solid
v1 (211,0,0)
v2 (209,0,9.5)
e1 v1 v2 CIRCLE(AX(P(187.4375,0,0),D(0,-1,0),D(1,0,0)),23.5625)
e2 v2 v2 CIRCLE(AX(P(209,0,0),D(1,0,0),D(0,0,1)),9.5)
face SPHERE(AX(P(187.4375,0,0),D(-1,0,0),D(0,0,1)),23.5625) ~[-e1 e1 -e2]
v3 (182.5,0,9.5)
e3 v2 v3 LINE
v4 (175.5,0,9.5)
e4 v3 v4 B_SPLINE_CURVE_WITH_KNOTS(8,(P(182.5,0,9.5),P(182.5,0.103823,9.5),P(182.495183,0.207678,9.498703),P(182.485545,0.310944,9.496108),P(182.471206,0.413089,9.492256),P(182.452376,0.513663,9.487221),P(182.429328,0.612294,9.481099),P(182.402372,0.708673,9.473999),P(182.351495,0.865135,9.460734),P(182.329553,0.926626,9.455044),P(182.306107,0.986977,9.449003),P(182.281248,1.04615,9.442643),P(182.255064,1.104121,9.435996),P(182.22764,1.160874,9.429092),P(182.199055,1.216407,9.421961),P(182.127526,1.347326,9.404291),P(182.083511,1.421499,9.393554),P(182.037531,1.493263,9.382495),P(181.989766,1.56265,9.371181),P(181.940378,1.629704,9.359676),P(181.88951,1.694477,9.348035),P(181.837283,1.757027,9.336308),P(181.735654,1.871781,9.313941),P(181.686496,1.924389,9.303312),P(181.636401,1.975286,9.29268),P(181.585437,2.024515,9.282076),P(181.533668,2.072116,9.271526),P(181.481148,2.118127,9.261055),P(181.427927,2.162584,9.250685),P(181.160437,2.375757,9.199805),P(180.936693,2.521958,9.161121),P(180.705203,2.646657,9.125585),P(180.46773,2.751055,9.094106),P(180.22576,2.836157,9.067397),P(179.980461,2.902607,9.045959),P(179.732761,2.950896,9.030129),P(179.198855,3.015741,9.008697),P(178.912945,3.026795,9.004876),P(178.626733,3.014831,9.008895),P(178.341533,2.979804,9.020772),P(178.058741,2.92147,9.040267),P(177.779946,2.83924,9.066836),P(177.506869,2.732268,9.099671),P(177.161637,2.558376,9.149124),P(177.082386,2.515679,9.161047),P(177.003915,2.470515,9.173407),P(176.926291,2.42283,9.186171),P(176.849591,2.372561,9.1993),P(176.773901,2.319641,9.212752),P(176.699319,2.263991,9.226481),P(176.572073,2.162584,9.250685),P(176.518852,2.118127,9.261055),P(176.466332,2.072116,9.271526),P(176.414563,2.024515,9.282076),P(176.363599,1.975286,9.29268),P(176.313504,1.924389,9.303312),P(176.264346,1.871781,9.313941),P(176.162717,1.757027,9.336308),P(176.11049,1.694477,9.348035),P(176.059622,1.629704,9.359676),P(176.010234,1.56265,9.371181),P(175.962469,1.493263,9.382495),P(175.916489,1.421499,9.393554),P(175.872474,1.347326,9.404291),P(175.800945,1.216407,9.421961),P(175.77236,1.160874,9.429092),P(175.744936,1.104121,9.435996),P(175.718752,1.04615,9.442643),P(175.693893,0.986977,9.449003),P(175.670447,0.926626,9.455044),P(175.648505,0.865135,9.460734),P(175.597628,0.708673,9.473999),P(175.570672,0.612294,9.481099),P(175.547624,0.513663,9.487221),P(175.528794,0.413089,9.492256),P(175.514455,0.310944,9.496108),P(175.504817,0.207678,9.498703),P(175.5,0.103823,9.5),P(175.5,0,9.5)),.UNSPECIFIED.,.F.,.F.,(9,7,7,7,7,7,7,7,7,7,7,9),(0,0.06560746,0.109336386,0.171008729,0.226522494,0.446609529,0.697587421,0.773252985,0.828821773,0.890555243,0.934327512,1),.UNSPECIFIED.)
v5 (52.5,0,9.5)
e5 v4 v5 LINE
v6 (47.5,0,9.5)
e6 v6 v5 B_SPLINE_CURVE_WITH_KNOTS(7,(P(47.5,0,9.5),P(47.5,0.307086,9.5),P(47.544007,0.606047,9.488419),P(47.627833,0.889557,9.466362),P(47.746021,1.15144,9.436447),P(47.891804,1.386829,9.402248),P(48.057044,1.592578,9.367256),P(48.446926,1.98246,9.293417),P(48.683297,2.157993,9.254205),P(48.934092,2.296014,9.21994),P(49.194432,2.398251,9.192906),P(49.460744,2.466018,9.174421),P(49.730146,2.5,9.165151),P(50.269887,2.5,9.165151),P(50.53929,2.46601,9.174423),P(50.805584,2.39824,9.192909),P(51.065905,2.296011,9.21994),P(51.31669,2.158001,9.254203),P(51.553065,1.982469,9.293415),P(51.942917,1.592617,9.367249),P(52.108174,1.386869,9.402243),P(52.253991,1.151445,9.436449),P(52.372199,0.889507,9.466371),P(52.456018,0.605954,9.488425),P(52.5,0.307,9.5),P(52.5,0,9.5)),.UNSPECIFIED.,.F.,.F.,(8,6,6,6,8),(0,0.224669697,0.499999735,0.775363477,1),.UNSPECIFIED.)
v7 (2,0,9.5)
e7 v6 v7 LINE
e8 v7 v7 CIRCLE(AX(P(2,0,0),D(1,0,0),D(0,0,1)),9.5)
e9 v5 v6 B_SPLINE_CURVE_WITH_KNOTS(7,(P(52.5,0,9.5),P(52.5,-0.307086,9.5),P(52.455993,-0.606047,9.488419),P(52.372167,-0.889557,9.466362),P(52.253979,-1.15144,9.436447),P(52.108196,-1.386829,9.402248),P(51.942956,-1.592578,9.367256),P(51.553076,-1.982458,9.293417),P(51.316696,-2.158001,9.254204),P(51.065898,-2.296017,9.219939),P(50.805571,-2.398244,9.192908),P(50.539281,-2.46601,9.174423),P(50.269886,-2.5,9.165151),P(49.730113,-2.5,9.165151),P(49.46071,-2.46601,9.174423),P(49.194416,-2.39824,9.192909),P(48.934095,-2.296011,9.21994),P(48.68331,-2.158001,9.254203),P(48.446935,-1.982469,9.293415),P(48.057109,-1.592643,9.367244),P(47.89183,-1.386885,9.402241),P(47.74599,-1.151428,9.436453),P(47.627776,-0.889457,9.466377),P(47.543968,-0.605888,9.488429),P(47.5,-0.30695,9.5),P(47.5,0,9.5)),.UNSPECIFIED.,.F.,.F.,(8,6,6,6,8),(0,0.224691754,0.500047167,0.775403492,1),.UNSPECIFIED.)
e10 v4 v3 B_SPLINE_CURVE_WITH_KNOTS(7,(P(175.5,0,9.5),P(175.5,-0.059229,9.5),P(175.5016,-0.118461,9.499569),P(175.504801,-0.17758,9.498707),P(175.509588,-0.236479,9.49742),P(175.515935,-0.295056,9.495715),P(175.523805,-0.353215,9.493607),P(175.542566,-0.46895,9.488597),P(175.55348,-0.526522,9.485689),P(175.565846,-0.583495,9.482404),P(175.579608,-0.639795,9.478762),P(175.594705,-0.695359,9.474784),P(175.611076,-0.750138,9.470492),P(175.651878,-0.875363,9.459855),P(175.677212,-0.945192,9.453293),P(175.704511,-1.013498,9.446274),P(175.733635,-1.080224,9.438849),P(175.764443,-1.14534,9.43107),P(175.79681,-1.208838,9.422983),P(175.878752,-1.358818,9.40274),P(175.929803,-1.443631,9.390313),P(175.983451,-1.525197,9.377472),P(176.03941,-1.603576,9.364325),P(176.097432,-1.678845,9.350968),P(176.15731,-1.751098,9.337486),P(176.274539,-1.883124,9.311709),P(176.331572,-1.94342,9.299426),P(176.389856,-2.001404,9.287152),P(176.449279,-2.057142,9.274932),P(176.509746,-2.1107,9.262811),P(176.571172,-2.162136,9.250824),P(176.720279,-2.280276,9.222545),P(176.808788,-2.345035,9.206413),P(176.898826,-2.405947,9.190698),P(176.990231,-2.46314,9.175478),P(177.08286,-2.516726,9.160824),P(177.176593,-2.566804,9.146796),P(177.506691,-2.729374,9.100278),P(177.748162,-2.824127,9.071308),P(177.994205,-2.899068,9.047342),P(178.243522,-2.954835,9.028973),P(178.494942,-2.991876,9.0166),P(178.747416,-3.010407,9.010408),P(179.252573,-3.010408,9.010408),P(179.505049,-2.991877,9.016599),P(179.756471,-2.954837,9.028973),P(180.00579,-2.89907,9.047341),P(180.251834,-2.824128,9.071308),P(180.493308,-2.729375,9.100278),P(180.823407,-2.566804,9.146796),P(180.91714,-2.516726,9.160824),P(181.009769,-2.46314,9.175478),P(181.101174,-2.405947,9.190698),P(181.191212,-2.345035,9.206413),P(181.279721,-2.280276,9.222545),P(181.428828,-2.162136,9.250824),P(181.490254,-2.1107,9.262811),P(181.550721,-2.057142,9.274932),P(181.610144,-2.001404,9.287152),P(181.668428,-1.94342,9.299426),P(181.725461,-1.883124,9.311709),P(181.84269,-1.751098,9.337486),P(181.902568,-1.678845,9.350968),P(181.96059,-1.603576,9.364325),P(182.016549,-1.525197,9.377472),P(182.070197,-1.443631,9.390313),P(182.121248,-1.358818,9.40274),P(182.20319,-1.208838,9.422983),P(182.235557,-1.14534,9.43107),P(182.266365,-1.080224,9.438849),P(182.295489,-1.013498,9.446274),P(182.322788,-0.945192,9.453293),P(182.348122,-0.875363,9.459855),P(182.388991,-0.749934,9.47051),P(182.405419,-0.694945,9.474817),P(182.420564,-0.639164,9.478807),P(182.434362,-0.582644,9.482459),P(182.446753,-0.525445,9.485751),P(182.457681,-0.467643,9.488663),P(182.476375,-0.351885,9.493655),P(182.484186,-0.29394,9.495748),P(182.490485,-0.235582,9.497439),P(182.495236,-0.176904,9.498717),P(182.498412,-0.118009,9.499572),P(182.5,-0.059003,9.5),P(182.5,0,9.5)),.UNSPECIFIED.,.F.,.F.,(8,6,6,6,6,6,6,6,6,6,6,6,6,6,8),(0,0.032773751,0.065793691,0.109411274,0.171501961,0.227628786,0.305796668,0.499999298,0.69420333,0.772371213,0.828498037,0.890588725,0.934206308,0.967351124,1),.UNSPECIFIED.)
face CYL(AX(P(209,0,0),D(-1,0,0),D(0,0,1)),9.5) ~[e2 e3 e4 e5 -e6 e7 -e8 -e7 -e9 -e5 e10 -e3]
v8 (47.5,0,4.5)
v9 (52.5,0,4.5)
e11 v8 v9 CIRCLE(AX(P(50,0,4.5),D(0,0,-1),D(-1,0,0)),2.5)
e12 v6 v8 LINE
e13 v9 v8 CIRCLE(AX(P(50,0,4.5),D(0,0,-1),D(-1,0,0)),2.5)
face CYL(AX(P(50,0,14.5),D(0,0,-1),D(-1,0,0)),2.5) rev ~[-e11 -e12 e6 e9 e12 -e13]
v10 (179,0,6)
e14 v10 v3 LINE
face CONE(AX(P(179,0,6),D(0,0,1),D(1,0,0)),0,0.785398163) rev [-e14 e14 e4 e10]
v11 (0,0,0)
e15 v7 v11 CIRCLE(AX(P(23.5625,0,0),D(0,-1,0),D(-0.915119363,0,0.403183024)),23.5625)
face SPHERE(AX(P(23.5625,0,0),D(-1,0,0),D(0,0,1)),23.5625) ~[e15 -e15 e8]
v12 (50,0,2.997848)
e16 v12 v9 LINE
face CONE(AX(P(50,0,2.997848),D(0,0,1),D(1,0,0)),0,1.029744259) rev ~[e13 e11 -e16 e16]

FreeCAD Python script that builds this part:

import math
import FreeCAD as App
import Part
import Sketcher
from FreeCAD import Vector
Q = App.Units.Quantity


def add_polygon(sketch, points):
    """Adds a closed chain of lines whose ends are joined by coincident constraints."""
    first, n = sketch.GeometryCount, len(points)
    for a, b in zip(points, points[1:] + points[:1]):
        sketch.addGeometry(Part.LineSegment(App.Vector(*a, 0), App.Vector(*b, 0)), False)
    for i in range(n):
        sketch.addConstraint(Sketcher.Constraint("Coincident", first + i, 2, first + (i + 1) % n, 1))

doc = App.newDocument("Part")
params = doc.addObject("Spreadsheet::Sheet", "Params")
for row, (alias, value) in enumerate([
    ("sketch1_width", "207 mm"),
    ("sketch1_width2", "211 mm"),
    ("revolution_angle", "360 deg"),
    ("sketch2_diameter", "5 mm"),
    ("hole_diameter", "5 mm"),
    ("hole_depth", "5 mm"),
    ("sketch3_width", "5.5 mm"),
    ("groove_angle", "360 deg"),
], start=1):
    params.set(f"A{row}", alias)
    params.set(f"B{row}", "=" + value)
    params.setAlias(f"B{row}", alias)

body = doc.addObject("PartDesign::Body", "Body")

# Sketch on XZ plane
sketch1 = doc.addObject("Sketcher::SketchObject", "Sketch")
body.addObject(sketch1)
sketch1.AttachmentSupport = (doc.XZ_Plane, [""])
sketch1.MapMode = "FlatFace"
sketch1.addGeometry([
    Part.LineSegment(Vector(209, 10, 0), Vector(2, 10, 0)),
    Part.ArcOfCircle(Part.Circle(Vector(24, 0, 0), Vector(0, 0, 1), 24), math.radians(156), math.radians(180)),
    Part.LineSegment(Vector(0, 0, 0), Vector(211, 0, 0)),
    Part.ArcOfCircle(Part.Circle(Vector(187, 0, 0), Vector(0, 0, 1), 24), math.radians(0), math.radians(24)),
], False)
sketch1.addConstraint([
    Sketcher.Constraint("Coincident", 0, 2, 1, 1),
    Sketcher.Constraint("Coincident", 1, 2, 2, 1),
    Sketcher.Constraint("Coincident", 2, 2, 3, 1),
    Sketcher.Constraint("Coincident", 3, 2, 0, 1),
    Sketcher.Constraint("Horizontal", 0),
    Sketcher.Constraint("Horizontal", 2),
    Sketcher.Constraint("Coincident", 1, 2, -1, 1),
    Sketcher.Constraint("Equal", 1, 3),
    Sketcher.Constraint("PointOnObject", 1, 3, -1),
    Sketcher.Constraint("PointOnObject", 3, 3, -1),
    Sketcher.Constraint("DistanceX", 0, 2, 0, 1, Q("207 mm")),
    Sketcher.Constraint("DistanceX", 2, 1, 2, 2, Q("211 mm")),
    Sketcher.Constraint("DistanceY", -1, 1, 0, 2, Q("9.5 mm")),
])
sketch1.setExpression("Constraints[10]", "Params.sketch1_width")
sketch1.setExpression("Constraints[11]", "Params.sketch1_width2")
revolution = doc.addObject("PartDesign::Revolution", "Revolution")
body.addObject(revolution)
revolution.Profile = sketch1
revolution.ReferenceAxis = (sketch1, ["H_Axis"])
revolution.setExpression("Angle", "Params.revolution_angle")

# Sketch on XY plane
sketch2 = doc.addObject("Sketcher::SketchObject", "Sketch001")
body.addObject(sketch2)
sketch2.AttachmentSupport = (doc.XY_Plane, [""])
sketch2.MapMode = "FlatFace"
sketch2.AttachmentOffset = App.Placement(Vector(0, 0, 9.5), App.Rotation())
sketch2.addGeometry(Part.Circle(Vector(50, 0, 0), Vector(0, 0, 1), 2.5), False)
sketch2.addConstraint([
    Sketcher.Constraint("PointOnObject", 0, 3, -1),
    Sketcher.Constraint("Diameter", 0, Q("5 mm")),
    Sketcher.Constraint("DistanceX", -1, 1, 0, 3, Q("50 mm")),
])
sketch2.setExpression("Constraints[1]", "Params.sketch2_diameter")
doc.recompute()
hole = doc.addObject("PartDesign::Hole", "Hole")
body.addObject(hole)
hole.Profile = sketch2
hole.ThreadType = "None"
hole.setExpression("Diameter", "Params.hole_diameter")
hole.DepthType = "Dimension"
hole.setExpression("Depth", "Params.hole_depth")
hole.DrillPoint = "Angled"
hole.DrillPointAngle = 118

# Sketch on XZ plane
sketch3 = doc.addObject("Sketcher::SketchObject", "Sketch002")
body.addObject(sketch3)
sketch3.AttachmentSupport = (doc.XZ_Plane, [""])
sketch3.MapMode = "FlatFace"
add_polygon(sketch3, [(184, 12), (179, 12), (179, 6)])  # lines 0-2
sketch3.addGeometry(Part.LineSegment(Vector(179, 12, 0), Vector(179, 6, 0)), True)  # axis
sketch3.addConstraint([
    Sketcher.Constraint("Horizontal", 0),
    Sketcher.Constraint("Vertical", 1),
    Sketcher.Constraint("Vertical", 3),
    Sketcher.Constraint("Coincident", 3, 1, 0, 2),
    Sketcher.Constraint("Equal", 0, 1),
    Sketcher.Constraint("Equal", 1, 3),
    Sketcher.Constraint("DistanceX", 0, 2, 0, 1, Q("5.5 mm")),
    Sketcher.Constraint("DistanceX", -1, 1, 0, 2, Q("179 mm")),
    Sketcher.Constraint("DistanceY", -1, 1, 1, 2, Q("6 mm")),
])
sketch3.setExpression("Constraints[9]", "Params.sketch3_width")
groove = doc.addObject("PartDesign::Groove", "Groove")
body.addObject(groove)
groove.Profile = sketch3
groove.ReferenceAxis = (sketch3, ["Axis0"])
groove.setExpression("Angle", "Params.groove_angle")

doc.recompute()
